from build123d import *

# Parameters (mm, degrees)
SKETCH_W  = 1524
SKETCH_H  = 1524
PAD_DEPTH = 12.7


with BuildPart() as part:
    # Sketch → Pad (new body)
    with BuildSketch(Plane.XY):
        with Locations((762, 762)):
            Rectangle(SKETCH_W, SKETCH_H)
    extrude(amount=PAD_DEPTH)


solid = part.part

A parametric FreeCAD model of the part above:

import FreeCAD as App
import Part
import Sketcher
from FreeCAD import Vector
Q = App.Units.Quantity

doc = App.newDocument("Part")
body = doc.addObject("PartDesign::Body", "Body")

# Sketch on XY plane
sketch1 = body.newObject("Sketcher::SketchObject", "Sketch")
sketch1.AttachmentSupport = (doc.getObject("XY_Plane"), [""])
sketch1.MapMode = "FlatFace"
sketch1.addGeometry([
    Part.LineSegment(Vector(0, 1524, 0), Vector(0, 0, 0)),
    Part.LineSegment(Vector(0, 0, 0), Vector(1524, 0, 0)),
    Part.LineSegment(Vector(1524, 0, 0), Vector(1524, 1524, 0)),
    Part.LineSegment(Vector(1524, 1524, 0), Vector(0, 1524, 0)),
], False)
sketch1.addConstraint([
    Sketcher.Constraint("Coincident", 0, 2, 1, 1),
    Sketcher.Constraint("Coincident", 1, 2, 2, 1),
    Sketcher.Constraint("Coincident", 2, 2, 3, 1),
    Sketcher.Constraint("Coincident", 3, 2, 0, 1),
    Sketcher.Constraint("Vertical", 0),
    Sketcher.Constraint("Horizontal", 1),
    Sketcher.Constraint("Vertical", 2),
    Sketcher.Constraint("Horizontal", 3),
    Sketcher.Constraint("Coincident", 0, 2, -1, 1),
    Sketcher.Constraint("Equal", 3, 0),
    Sketcher.Constraint("DistanceX", 1, 1, 1, 2, Q("60 in")),
])
pad1 = body.newObject("PartDesign::Pad", "Pad")
pad1.Profile = sketch1
pad1.Length = Q("0.5 in")

doc.recompute()
